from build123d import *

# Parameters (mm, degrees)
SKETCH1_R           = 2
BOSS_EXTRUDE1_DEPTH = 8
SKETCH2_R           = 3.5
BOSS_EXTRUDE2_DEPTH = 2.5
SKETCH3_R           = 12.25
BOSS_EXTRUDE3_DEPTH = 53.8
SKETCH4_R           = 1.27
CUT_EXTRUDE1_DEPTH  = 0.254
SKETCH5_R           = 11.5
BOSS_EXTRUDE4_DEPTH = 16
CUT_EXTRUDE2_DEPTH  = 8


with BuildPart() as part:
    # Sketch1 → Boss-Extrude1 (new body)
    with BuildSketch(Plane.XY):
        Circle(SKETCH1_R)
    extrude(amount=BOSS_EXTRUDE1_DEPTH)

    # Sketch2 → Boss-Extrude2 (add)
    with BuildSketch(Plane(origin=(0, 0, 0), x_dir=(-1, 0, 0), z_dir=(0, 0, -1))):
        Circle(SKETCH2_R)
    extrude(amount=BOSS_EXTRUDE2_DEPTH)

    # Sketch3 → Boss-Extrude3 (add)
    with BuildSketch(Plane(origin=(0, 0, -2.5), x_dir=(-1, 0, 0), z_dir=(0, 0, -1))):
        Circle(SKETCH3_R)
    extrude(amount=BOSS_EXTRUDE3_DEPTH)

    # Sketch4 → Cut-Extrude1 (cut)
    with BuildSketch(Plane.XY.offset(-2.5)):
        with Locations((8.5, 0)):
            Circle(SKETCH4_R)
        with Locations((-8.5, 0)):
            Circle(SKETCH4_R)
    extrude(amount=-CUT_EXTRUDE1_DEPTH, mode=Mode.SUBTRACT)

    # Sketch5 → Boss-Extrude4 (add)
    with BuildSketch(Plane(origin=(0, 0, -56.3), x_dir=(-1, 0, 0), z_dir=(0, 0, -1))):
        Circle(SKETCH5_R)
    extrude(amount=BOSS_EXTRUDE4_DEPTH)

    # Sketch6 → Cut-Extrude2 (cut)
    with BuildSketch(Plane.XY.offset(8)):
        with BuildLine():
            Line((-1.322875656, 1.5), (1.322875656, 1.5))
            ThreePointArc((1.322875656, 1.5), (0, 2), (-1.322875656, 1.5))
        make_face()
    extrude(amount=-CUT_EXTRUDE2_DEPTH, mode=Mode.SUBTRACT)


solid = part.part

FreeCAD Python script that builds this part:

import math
import FreeCAD as App
import Part
import Sketcher

V = App.Vector
Q = App.Units.Quantity

doc = App.newDocument("Part")
params = doc.addObject("Spreadsheet::Sheet", "Params")
for row, (alias, value) in enumerate([
    ("sketch1_diameter", "4 mm"),
    ("pad1_length", "8 mm"),
    ("sketch2_diameter", "7 mm"),
    ("pad2_length", "2.5 mm"),
    ("sketch3_diameter", "24.5 mm"),
    ("pad3_length", "53.8 mm"),
    ("sketch4_diameter", "2.54 mm"),
    ("pocket1_length", "0.254 mm"),
    ("sketch5_diameter", "23 mm"),
    ("pad4_length", "16 mm"),
    ("sketch6_radius", "2 mm"),
    ("pocket2_length", "8 mm"),
], start=1):
    params.set(f"A{row}", alias)
    params.set(f"B{row}", "=" + value)
    params.setAlias(f"B{row}", alias)

body = doc.addObject("PartDesign::Body", "Body")

sketch1 = body.newObject("Sketcher::SketchObject", "Sketch")
sketch1.AttachmentSupport = (doc.getObject("XY_Plane"), [""])
sketch1.MapMode = "FlatFace"
sketch1.addGeometry(Part.Circle(V(0, 0, 0), V(0, 0, 1), 2), False)
sketch1.addConstraint([
    Sketcher.Constraint("Coincident", 0, 3, -1, 1),
    Sketcher.Constraint("Diameter", 0, Q("4 mm")),
])
sketch1.setExpression("Constraints[1]", "Params.sketch1_diameter")
pad1 = body.newObject("PartDesign::Pad", "Pad")
pad1.Profile = sketch1
pad1.setExpression("Length", "Params.pad1_length")

sketch2 = body.newObject("Sketcher::SketchObject", "Sketch001")
sketch2.AttachmentSupport = (doc.getObject("XY_Plane"), [""])
sketch2.MapMode = "FlatFace"
sketch2.addGeometry(Part.Circle(V(0, 0, 0), V(0, 0, 1), 3.5), False)
sketch2.addConstraint([
    Sketcher.Constraint("Coincident", 0, 3, -1, 1),
    Sketcher.Constraint("Diameter", 0, Q("7 mm")),
])
sketch2.setExpression("Constraints[1]", "Params.sketch2_diameter")
pad2 = body.newObject("PartDesign::Pad", "Pad001")
pad2.Profile = sketch2
pad2.setExpression("Length", "Params.pad2_length")
pad2.Reversed = True

sketch3 = body.newObject("Sketcher::SketchObject", "Sketch002")
sketch3.AttachmentSupport = (doc.getObject("XY_Plane"), [""])
sketch3.MapMode = "FlatFace"
sketch3.AttachmentOffset = App.Placement(V(0, 0, -2.5), App.Rotation())
sketch3.addGeometry(Part.Circle(V(0, 0, 0), V(0, 0, 1), 12), False)
sketch3.addConstraint([
    Sketcher.Constraint("Coincident", 0, 3, -1, 1),
    Sketcher.Constraint("Diameter", 0, Q("24.5 mm")),
])
sketch3.setExpression("Constraints[1]", "Params.sketch3_diameter")
pad3 = body.newObject("PartDesign::Pad", "Pad002")
pad3.Profile = sketch3
pad3.setExpression("Length", "Params.pad3_length")
pad3.Reversed = True

sketch4 = body.newObject("Sketcher::SketchObject", "Sketch003")
sketch4.AttachmentSupport = (doc.getObject("XY_Plane"), [""])
sketch4.MapMode = "FlatFace"
sketch4.AttachmentOffset = App.Placement(V(0, 0, -2.5), App.Rotation())
sketch4.addGeometry([
    Part.Circle(V(8.5, 0, 0), V(0, 0, 1), 1.3),
    Part.Circle(V(-8.5, 0, 0), V(0, 0, 1), 1.3),
], False)
sketch4.addConstraint([
    Sketcher.Constraint("Equal", 0, 1),
    Sketcher.Constraint("Symmetric", 0, 3, 1, 3, -1, 1),
    Sketcher.Constraint("PointOnObject", 0, 3, -1),
    Sketcher.Constraint("Diameter", 0, Q("2.54 mm")),
    Sketcher.Constraint("DistanceX", 1, 3, 0, 3, Q("17 mm")),
])
sketch4.setExpression("Constraints[3]", "Params.sketch4_diameter")
pocket1 = body.newObject("PartDesign::Pocket", "Pocket")
pocket1.Profile = sketch4
pocket1.setExpression("Length", "Params.pocket1_length")

sketch5 = body.newObject("Sketcher::SketchObject", "Sketch004")
sketch5.AttachmentSupport = (doc.getObject("XY_Plane"), [""])
sketch5.MapMode = "FlatFace"
sketch5.AttachmentOffset = App.Placement(V(0, 0, -56.3), App.Rotation())
sketch5.addGeometry(Part.Circle(V(0, 0, 0), V(0, 0, 1), 12), False)
sketch5.addConstraint([
    Sketcher.Constraint("Coincident", 0, 3, -1, 1),
    Sketcher.Constraint("Diameter", 0, Q("23 mm")),
])
sketch5.setExpression("Constraints[1]", "Params.sketch5_diameter")
pad4 = body.newObject("PartDesign::Pad", "Pad003")
pad4.Profile = sketch5
pad4.setExpression("Length", "Params.pad4_length")
pad4.Reversed = True

sketch6 = body.newObject("Sketcher::SketchObject", "Sketch005")
sketch6.AttachmentSupport = (doc.getObject("XY_Plane"), [""])
sketch6.MapMode = "FlatFace"
sketch6.AttachmentOffset = App.Placement(V(0, 0, 8), App.Rotation())
sketch6.addGeometry([
    Part.LineSegment(V(-1.3, 1.5, 0), V(1.3, 1.5, 0)),
    Part.ArcOfCircle(Part.Circle(V(0, 0, 0), V(0, 0, 1), 2), math.radians(49), math.radians(131)),
], False)
sketch6.addConstraint([
    Sketcher.Constraint("Coincident", 0, 1, 1, 2),
    Sketcher.Constraint("Coincident", 1, 1, 0, 2),
    Sketcher.Constraint("Horizontal", 0),
    Sketcher.Constraint("Coincident", 1, 3, -1, 1),
    Sketcher.Constraint("Radius", 1, Q("2 mm")),
    Sketcher.Constraint("DistanceY", -1, 1, 0, 1, Q("1.5 mm")),
])
sketch6.setExpression("Constraints[4]", "Params.sketch6_radius")
pocket2 = body.newObject("PartDesign::Pocket", "Pocket001")
pocket2.Profile = sketch6
pocket2.setExpression("Length", "Params.pocket2_length")

doc.recompute()
